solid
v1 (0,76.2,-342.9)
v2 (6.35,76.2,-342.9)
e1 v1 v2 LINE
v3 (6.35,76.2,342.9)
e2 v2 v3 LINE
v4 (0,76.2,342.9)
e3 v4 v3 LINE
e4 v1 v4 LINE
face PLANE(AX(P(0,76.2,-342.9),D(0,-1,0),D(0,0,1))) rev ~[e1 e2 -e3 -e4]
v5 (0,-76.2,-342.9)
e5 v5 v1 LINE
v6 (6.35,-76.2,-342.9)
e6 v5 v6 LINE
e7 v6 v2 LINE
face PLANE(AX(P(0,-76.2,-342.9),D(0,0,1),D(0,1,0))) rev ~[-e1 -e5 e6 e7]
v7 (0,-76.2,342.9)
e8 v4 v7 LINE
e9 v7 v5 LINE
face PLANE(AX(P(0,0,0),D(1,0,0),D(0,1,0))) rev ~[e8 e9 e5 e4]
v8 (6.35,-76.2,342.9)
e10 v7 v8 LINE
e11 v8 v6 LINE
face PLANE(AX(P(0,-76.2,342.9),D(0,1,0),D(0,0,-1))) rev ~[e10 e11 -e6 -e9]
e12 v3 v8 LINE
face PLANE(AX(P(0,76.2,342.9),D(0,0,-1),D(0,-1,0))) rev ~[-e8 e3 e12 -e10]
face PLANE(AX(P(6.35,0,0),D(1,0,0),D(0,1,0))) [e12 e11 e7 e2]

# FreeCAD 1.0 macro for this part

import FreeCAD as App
import Part
import Sketcher
from FreeCAD import Vector
Q = App.Units.Quantity

doc = App.newDocument("Part")
body = doc.addObject("PartDesign::Body", "Body")

sketch1 = doc.addObject("Sketcher::SketchObject", "Sketch")
body.addObject(sketch1)
sketch1.AttachmentSupport = (doc.YZ_Plane, [""])
sketch1.MapMode = "FlatFace"
sketch1.addGeometry(Part.LineSegment(Vector(76, 343, 0), Vector(-76, 343, 0)), False)
sketch1.addGeometry(Part.LineSegment(Vector(-76, 343, 0), Vector(-76, -343, 0)), False)
sketch1.addGeometry(Part.LineSegment(Vector(-76, -343, 0), Vector(76, -343, 0)), False)
sketch1.addGeometry(Part.LineSegment(Vector(76, -343, 0), Vector(76, 343, 0)), False)
sketch1.addConstraint(Sketcher.Constraint("Coincident", 0, 2, 1, 1))
sketch1.addConstraint(Sketcher.Constraint("Coincident", 1, 2, 2, 1))
sketch1.addConstraint(Sketcher.Constraint("Coincident", 2, 2, 3, 1))
sketch1.addConstraint(Sketcher.Constraint("Coincident", 3, 2, 0, 1))
sketch1.addConstraint(Sketcher.Constraint("Horizontal", 0))
sketch1.addConstraint(Sketcher.Constraint("Vertical", 1))
sketch1.addConstraint(Sketcher.Constraint("Horizontal", 2))
sketch1.addConstraint(Sketcher.Constraint("Vertical", 3))
sketch1.addConstraint(Sketcher.Constraint("Symmetric", 0, 2, 2, 2, -1, 1))
sketch1.addConstraint(Sketcher.Constraint("DistanceX", 0, 2, 0, 1, Q("6 in")))
sketch1.addConstraint(Sketcher.Constraint("DistanceY", 1, 2, 1, 1, Q("27 in")))
pad1 = doc.addObject("PartDesign::Pad", "Pad")
body.addObject(pad1)
pad1.Profile = sketch1
pad1.Length = Q("0.25 in")

doc.recompute()
